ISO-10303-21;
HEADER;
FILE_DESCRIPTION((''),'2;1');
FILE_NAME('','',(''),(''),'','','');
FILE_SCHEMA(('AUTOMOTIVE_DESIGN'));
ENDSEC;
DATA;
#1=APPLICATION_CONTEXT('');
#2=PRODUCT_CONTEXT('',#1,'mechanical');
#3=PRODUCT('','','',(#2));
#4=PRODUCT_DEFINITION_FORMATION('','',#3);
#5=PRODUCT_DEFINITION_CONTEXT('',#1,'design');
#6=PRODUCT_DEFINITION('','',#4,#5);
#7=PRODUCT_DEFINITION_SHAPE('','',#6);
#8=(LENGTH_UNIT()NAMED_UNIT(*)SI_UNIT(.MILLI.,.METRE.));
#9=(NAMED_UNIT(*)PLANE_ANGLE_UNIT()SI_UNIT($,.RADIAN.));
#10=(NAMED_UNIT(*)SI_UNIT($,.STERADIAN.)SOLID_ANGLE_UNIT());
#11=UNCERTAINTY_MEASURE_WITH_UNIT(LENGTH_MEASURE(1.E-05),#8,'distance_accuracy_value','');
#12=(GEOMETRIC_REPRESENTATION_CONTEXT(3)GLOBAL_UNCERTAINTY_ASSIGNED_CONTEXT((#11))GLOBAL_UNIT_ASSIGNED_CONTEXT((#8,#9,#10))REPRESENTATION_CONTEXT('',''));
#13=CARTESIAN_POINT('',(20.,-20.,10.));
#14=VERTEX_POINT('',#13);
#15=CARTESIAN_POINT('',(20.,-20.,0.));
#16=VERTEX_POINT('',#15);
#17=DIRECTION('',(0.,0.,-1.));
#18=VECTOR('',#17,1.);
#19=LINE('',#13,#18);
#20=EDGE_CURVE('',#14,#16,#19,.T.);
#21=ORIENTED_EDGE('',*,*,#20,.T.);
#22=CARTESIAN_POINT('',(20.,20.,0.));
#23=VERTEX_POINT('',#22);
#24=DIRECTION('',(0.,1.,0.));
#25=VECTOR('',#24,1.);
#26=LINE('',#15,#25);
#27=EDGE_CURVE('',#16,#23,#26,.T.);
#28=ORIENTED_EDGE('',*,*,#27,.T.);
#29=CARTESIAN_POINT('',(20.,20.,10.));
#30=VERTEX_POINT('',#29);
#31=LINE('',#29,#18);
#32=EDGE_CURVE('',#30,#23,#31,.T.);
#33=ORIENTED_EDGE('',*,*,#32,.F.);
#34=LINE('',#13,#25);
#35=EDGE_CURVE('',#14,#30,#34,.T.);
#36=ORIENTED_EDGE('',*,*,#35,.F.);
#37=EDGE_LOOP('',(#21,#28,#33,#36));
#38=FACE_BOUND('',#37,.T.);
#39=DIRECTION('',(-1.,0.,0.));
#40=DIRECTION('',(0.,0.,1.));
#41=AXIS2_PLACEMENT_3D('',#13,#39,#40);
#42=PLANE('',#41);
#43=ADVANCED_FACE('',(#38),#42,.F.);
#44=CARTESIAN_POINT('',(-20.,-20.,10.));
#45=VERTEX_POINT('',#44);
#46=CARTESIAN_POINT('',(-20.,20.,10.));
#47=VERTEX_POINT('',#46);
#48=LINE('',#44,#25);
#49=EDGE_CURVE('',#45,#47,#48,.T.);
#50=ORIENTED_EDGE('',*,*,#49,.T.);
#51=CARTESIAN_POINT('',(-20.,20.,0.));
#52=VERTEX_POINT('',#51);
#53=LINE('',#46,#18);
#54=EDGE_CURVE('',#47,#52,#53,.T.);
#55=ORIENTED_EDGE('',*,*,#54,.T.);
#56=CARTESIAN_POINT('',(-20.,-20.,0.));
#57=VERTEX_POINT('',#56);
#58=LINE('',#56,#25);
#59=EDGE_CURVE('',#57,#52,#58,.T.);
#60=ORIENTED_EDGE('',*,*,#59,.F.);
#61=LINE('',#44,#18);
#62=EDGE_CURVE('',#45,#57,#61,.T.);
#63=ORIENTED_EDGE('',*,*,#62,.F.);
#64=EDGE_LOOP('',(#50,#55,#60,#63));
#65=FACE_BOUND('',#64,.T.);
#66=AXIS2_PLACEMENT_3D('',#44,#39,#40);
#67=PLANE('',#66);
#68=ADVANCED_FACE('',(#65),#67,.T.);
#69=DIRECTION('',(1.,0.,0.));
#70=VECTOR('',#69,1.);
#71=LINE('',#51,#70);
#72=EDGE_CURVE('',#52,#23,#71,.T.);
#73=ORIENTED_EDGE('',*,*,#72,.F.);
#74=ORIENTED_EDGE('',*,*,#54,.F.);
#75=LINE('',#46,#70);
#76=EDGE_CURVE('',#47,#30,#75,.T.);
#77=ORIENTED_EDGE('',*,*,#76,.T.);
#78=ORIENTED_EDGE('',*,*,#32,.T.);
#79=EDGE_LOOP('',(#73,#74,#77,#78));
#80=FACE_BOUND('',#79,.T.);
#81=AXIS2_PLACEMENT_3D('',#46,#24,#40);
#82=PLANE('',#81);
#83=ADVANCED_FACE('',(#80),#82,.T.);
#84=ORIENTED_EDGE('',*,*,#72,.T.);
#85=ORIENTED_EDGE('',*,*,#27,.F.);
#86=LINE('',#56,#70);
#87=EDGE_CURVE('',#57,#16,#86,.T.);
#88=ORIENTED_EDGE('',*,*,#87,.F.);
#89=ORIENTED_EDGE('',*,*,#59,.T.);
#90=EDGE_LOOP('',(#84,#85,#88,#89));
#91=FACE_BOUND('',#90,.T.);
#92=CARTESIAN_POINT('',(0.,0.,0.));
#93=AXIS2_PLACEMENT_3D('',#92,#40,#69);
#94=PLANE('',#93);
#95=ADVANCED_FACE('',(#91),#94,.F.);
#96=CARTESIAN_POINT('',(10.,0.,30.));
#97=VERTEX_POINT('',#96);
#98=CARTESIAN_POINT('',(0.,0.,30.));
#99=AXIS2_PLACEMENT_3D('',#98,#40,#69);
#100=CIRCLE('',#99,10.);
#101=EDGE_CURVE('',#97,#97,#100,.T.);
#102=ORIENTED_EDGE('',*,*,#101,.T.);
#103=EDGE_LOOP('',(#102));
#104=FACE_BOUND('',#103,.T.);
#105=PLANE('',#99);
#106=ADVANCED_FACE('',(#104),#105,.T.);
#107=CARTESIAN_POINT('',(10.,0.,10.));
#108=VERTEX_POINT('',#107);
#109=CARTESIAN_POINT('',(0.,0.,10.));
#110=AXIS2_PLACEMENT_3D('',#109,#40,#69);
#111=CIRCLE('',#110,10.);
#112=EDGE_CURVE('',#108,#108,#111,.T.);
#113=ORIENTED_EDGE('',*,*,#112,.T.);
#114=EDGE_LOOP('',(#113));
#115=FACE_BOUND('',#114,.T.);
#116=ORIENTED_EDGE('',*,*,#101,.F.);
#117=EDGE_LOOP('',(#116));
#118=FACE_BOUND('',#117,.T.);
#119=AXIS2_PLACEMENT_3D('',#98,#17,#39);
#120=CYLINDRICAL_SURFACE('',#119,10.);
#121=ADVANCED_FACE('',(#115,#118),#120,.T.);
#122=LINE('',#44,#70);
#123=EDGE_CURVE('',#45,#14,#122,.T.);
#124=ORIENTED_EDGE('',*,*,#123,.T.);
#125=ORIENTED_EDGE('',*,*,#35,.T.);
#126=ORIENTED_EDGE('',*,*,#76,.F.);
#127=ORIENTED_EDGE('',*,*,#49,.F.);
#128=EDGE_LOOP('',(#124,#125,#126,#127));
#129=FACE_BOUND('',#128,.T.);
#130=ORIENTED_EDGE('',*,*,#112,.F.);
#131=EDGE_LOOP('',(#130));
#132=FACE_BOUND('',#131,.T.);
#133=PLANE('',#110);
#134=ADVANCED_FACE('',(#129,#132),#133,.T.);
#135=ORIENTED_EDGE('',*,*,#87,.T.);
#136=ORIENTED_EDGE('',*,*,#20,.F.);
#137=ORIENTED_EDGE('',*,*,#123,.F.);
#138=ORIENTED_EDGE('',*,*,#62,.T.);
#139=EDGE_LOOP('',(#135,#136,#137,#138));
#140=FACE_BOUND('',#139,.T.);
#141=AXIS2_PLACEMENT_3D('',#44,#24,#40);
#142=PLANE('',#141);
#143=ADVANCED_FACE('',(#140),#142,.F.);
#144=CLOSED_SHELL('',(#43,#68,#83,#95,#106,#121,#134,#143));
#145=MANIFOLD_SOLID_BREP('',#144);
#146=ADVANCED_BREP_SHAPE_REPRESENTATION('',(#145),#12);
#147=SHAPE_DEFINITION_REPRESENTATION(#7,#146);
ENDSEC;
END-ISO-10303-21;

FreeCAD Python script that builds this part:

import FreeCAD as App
import Part
import Sketcher
from FreeCAD import Vector

doc = App.newDocument("Part")
params = doc.addObject("Spreadsheet::Sheet", "Params")
for row, (alias, value) in enumerate([
    ("sketch1_width", "40 mm"),
    ("pad1_length", "10 mm"),
    ("sketch2_diameter", "20 mm"),
    ("pad2_length", "20 mm"),
], start=1):
    params.set(f"A{row}", alias)
    params.set(f"B{row}", "=" + value)
    params.setAlias(f"B{row}", alias)

body = doc.addObject("PartDesign::Body", "Body")

sketch1 = body.newObject("Sketcher::SketchObject", "Sketch")
sketch1.AttachmentSupport = (doc.getObject("XY_Plane"), [""])
sketch1.MapMode = "FlatFace"
sketch1.addGeometry([
    Part.LineSegment(Vector(-20, 20, 0), Vector(-20, -20, 0)),
    Part.LineSegment(Vector(-20, -20, 0), Vector(20, -20, 0)),
    Part.LineSegment(Vector(20, -20, 0), Vector(20, 20, 0)),
    Part.LineSegment(Vector(20, 20, 0), Vector(-20, 20, 0)),
], False)
sketch1.addConstraint([
    Sketcher.Constraint("Coincident", 0, 2, 1, 1),
    Sketcher.Constraint("Coincident", 1, 2, 2, 1),
    Sketcher.Constraint("Coincident", 2, 2, 3, 1),
    Sketcher.Constraint("Coincident", 3, 2, 0, 1),
    Sketcher.Constraint("Vertical", 0),
    Sketcher.Constraint("Horizontal", 1),
    Sketcher.Constraint("Vertical", 2),
    Sketcher.Constraint("Horizontal", 3),
    Sketcher.Constraint("Symmetric", 0, 2, 2, 2, -1, 1),
    Sketcher.Constraint("Equal", 3, 0),
    Sketcher.Constraint("DistanceX", 1, 1, 1, 2, 40.0),
])
sketch1.setExpression("Constraints[10]", "Params.sketch1_width")
pad1 = body.newObject("PartDesign::Pad", "Pad")
pad1.Profile = sketch1
pad1.setExpression("Length", "Params.pad1_length")

sketch2 = body.newObject("Sketcher::SketchObject", "Sketch001")
sketch2.AttachmentSupport = (doc.getObject("XY_Plane"), [""])
sketch2.MapMode = "FlatFace"
sketch2.AttachmentOffset = App.Placement(Vector(0, 0, 10), App.Rotation())
sketch2.addGeometry(Part.Circle(Vector(0, 0, 0), Vector(0, 0, 1), 10), False)
sketch2.addConstraint([
    Sketcher.Constraint("Coincident", 0, 3, -1, 1),
    Sketcher.Constraint("Diameter", 0, 20.0),
])
sketch2.setExpression("Constraints[1]", "Params.sketch2_diameter")
pad2 = body.newObject("PartDesign::Pad", "Pad001")
pad2.Profile = sketch2
pad2.setExpression("Length", "Params.pad2_length")

doc.recompute()
